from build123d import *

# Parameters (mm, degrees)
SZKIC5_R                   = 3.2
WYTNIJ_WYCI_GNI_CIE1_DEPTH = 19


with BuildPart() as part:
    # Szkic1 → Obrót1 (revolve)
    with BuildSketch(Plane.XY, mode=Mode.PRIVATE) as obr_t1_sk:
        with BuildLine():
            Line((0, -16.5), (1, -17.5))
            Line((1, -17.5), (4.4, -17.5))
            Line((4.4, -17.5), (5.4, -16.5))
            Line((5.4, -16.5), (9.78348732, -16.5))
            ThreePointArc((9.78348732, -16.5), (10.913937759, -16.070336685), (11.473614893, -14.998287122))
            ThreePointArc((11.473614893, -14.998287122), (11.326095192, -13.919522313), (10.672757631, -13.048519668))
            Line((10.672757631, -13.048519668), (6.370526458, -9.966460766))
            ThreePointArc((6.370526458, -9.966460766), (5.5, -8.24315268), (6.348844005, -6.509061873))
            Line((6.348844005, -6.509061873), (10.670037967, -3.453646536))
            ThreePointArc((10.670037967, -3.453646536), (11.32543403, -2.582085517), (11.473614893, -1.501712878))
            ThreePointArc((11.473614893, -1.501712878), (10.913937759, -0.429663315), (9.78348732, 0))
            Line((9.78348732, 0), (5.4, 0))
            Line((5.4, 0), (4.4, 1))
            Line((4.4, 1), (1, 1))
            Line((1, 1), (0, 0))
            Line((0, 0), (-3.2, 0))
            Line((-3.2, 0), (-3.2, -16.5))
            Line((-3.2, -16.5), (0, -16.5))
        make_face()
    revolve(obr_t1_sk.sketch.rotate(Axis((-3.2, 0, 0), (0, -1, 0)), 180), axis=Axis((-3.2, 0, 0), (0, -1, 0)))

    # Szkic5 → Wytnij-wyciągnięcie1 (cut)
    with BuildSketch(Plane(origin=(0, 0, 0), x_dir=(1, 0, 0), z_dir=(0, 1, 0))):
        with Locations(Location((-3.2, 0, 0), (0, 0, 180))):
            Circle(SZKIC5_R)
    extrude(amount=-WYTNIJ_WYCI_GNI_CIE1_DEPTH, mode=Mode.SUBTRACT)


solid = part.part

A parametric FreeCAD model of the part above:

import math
import FreeCAD as App
import Part
import Sketcher
from FreeCAD import Vector
Q = App.Units.Quantity

doc = App.newDocument("Part")
body = doc.addObject("PartDesign::Body", "Body")

sketch1 = body.newObject("Sketcher::SketchObject", "Sketch")
sketch1.AttachmentSupport = (doc.getObject("XY_Plane"), [""])
sketch1.MapMode = "FlatFace"
sketch1.addGeometry([
    Part.LineSegment(Vector(0, -16.5, 0), Vector(1, -17.5, 0)),
    Part.LineSegment(Vector(1, -17.5, 0), Vector(4.4, -17.5, 0)),
    Part.LineSegment(Vector(4.4, -17.5, 0), Vector(5.4, -16.5, 0)),
    Part.LineSegment(Vector(5.4, -16.5, 0), Vector(9.8, -16.5, 0)),
    Part.ArcOfCircle(Part.Circle(Vector(9.8, -14.8, 0), Vector(0, 0, 1), 1.7), math.radians(-90), math.radians(-7)),
    Part.ArcOfCircle(Part.Circle(Vector(9.3, -14.7, 0), Vector(0, 0, 1), 2.2), math.radians(-7), math.radians(51)),
    Part.LineSegment(Vector(10.7, -13, 0), Vector(6.4, -10, 0)),
    Part.ArcOfCircle(Part.Circle(Vector(7.7, -8.2, 0), Vector(0, 0, 1), 2.2), math.radians(127), math.radians(233)),
    Part.LineSegment(Vector(6.3, -6.5, 0), Vector(10.7, -3.5, 0)),
    Part.ArcOfCircle(Part.Circle(Vector(9.3, -1.8, 0), Vector(0, 0, 1), 2.2), math.radians(-52), math.radians(7)),
    Part.ArcOfCircle(Part.Circle(Vector(9.8, -1.7, 0), Vector(0, 0, 1), 1.7), math.radians(7), math.radians(90)),
    Part.LineSegment(Vector(9.8, 0, 0), Vector(5.4, 0, 0)),
    Part.LineSegment(Vector(5.4, 0, 0), Vector(4.4, 1, 0)),
    Part.LineSegment(Vector(4.4, 1, 0), Vector(1, 1, 0)),
    Part.LineSegment(Vector(1, 1, 0), Vector(0, 0, 0)),
    Part.LineSegment(Vector(0, 0, 0), Vector(-3.2, 0, 0)),
    Part.LineSegment(Vector(-3.2, 0, 0), Vector(-3.2, -16.5, 0)),
    Part.LineSegment(Vector(-3.2, -16.5, 0), Vector(0, -16.5, 0)),
], False)
sketch1.addGeometry(Part.LineSegment(Vector(-3.2, 1, 0), Vector(-3.2, -17.5, 0)), True)
sketch1.addConstraint([
    Sketcher.Constraint("Coincident", 0, 2, 1, 1),
    Sketcher.Constraint("Coincident", 1, 2, 2, 1),
    Sketcher.Constraint("Coincident", 2, 2, 3, 1),
    Sketcher.Constraint("Tangent", 3, 2, 4, 1),
    Sketcher.Constraint("Tangent", 4, 2, 5, 1),
    Sketcher.Constraint("Coincident", 5, 2, 6, 1),
    Sketcher.Constraint("Coincident", 6, 2, 7, 2),
    Sketcher.Constraint("Coincident", 7, 1, 8, 1),
    Sketcher.Constraint("Coincident", 8, 2, 9, 1),
    Sketcher.Constraint("Tangent", 9, 2, 10, 1),
    Sketcher.Constraint("Tangent", 10, 2, 11, 1),
    Sketcher.Constraint("Coincident", 11, 2, 12, 1),
    Sketcher.Constraint("Coincident", 12, 2, 13, 1),
    Sketcher.Constraint("Coincident", 13, 2, 14, 1),
    Sketcher.Constraint("Coincident", 14, 2, 15, 1),
    Sketcher.Constraint("Coincident", 15, 2, 16, 1),
    Sketcher.Constraint("Coincident", 16, 2, 17, 1),
    Sketcher.Constraint("Coincident", 17, 2, 0, 1),
    Sketcher.Constraint("Horizontal", 1),
    Sketcher.Constraint("Horizontal", 3),
    Sketcher.Constraint("Horizontal", 11),
    Sketcher.Constraint("Horizontal", 13),
    Sketcher.Constraint("Horizontal", 15),
    Sketcher.Constraint("Vertical", 16),
    Sketcher.Constraint("Horizontal", 17),
    Sketcher.Constraint("Vertical", 18),
    Sketcher.Constraint("Coincident", 14, 2, -1, 1),
    Sketcher.Constraint("Equal", 5, 7),
    Sketcher.Constraint("Equal", 7, 9),
    Sketcher.Constraint("Equal", 4, 10),
    Sketcher.Constraint("PointOnObject", 10, 2, -1),
    Sketcher.Constraint("PointOnObject", 17, 2, -2),
    Sketcher.Constraint("Perpendicular", 0, 2),
    Sketcher.Constraint("Perpendicular", 2, 12),
    Sketcher.Constraint("Perpendicular", 12, 14),
    Sketcher.Constraint("Horizontal", 3, 2, 16, 2),
    Sketcher.Constraint("Horizontal", 13, 2, 18, 1),
    Sketcher.Constraint("Horizontal", 1, 2, 18, 2),
    Sketcher.Constraint("Vertical", 5, 3, 9, 3),
    Sketcher.Constraint("Vertical", 4, 3, 10, 3),
    Sketcher.Constraint("Vertical", 2, 2, 11, 2),
    Sketcher.Constraint("Vertical", 1, 2, 12, 2),
    Sketcher.Constraint("Vertical", 0, 2, 13, 2),
    Sketcher.Constraint("Vertical", 16, 2, 18, 1),
    Sketcher.Constraint("Equal", 6, 8),
    Sketcher.Constraint("DistanceX", 1, 1, 1, 2, Q("3.4 mm")),
    Sketcher.Constraint("DistanceX", 15, 2, 15, 1, Q("3.2 mm")),
    Sketcher.Constraint("DistanceY", 16, 2, 16, 1, Q("16.5 mm")),
    Sketcher.Constraint("DistanceY", 18, 2, 18, 1, Q("18.5 mm")),
    Sketcher.Constraint("Radius", 4, Q("1.701947 mm")),
    Sketcher.Constraint("Radius", 5, Q("2.167964 mm")),
    Sketcher.Constraint("DistanceY", 6, 2, 7, 1, Q("3.457399 mm")),
    Sketcher.Constraint("DistanceY", 8, 2, 10, 3, Q("1.751699 mm")),
    Sketcher.Constraint("DistanceX", 3, 1, 3, 2, Q("4.383487 mm")),
    Sketcher.Constraint("DistanceX", -1, 1, 7, 3, Q("7.667922 mm")),
    Sketcher.Constraint("DistanceY", 5, 2, -1, 1, Q("13.04852 mm")),
    Sketcher.Constraint("DistanceY", 6, 2, -1, 1, Q("9.966461 mm")),
    Sketcher.Constraint("DistanceX", 5, 3, 4, 3, Q("0.46278 mm")),
])
revolution = body.newObject("PartDesign::Revolution", "Revolution")
revolution.Profile = sketch1
revolution.ReferenceAxis = (sketch1, ["Axis0"])
revolution.Angle = 360

sketch2 = body.newObject("Sketcher::SketchObject", "Sketch001")
sketch2.AttachmentSupport = (doc.getObject("XZ_Plane"), [""])
sketch2.MapMode = "FlatFace"
sketch2.addGeometry(Part.Circle(Vector(-3.2, 0, 0), Vector(0, 0, 1), 3.2), False)
sketch2.addConstraint([
    Sketcher.Constraint("PointOnObject", 0, 3, -1),
    Sketcher.Constraint("Diameter", 0, Q("6.4 mm")),
    Sketcher.Constraint("DistanceX", 0, 3, -1, 1, Q("3.2 mm")),
])
pocket1 = body.newObject("PartDesign::Pocket", "Pocket")
pocket1.Profile = sketch2
pocket1.Length = 19
pocket1.Reversed = True

doc.recompute()
